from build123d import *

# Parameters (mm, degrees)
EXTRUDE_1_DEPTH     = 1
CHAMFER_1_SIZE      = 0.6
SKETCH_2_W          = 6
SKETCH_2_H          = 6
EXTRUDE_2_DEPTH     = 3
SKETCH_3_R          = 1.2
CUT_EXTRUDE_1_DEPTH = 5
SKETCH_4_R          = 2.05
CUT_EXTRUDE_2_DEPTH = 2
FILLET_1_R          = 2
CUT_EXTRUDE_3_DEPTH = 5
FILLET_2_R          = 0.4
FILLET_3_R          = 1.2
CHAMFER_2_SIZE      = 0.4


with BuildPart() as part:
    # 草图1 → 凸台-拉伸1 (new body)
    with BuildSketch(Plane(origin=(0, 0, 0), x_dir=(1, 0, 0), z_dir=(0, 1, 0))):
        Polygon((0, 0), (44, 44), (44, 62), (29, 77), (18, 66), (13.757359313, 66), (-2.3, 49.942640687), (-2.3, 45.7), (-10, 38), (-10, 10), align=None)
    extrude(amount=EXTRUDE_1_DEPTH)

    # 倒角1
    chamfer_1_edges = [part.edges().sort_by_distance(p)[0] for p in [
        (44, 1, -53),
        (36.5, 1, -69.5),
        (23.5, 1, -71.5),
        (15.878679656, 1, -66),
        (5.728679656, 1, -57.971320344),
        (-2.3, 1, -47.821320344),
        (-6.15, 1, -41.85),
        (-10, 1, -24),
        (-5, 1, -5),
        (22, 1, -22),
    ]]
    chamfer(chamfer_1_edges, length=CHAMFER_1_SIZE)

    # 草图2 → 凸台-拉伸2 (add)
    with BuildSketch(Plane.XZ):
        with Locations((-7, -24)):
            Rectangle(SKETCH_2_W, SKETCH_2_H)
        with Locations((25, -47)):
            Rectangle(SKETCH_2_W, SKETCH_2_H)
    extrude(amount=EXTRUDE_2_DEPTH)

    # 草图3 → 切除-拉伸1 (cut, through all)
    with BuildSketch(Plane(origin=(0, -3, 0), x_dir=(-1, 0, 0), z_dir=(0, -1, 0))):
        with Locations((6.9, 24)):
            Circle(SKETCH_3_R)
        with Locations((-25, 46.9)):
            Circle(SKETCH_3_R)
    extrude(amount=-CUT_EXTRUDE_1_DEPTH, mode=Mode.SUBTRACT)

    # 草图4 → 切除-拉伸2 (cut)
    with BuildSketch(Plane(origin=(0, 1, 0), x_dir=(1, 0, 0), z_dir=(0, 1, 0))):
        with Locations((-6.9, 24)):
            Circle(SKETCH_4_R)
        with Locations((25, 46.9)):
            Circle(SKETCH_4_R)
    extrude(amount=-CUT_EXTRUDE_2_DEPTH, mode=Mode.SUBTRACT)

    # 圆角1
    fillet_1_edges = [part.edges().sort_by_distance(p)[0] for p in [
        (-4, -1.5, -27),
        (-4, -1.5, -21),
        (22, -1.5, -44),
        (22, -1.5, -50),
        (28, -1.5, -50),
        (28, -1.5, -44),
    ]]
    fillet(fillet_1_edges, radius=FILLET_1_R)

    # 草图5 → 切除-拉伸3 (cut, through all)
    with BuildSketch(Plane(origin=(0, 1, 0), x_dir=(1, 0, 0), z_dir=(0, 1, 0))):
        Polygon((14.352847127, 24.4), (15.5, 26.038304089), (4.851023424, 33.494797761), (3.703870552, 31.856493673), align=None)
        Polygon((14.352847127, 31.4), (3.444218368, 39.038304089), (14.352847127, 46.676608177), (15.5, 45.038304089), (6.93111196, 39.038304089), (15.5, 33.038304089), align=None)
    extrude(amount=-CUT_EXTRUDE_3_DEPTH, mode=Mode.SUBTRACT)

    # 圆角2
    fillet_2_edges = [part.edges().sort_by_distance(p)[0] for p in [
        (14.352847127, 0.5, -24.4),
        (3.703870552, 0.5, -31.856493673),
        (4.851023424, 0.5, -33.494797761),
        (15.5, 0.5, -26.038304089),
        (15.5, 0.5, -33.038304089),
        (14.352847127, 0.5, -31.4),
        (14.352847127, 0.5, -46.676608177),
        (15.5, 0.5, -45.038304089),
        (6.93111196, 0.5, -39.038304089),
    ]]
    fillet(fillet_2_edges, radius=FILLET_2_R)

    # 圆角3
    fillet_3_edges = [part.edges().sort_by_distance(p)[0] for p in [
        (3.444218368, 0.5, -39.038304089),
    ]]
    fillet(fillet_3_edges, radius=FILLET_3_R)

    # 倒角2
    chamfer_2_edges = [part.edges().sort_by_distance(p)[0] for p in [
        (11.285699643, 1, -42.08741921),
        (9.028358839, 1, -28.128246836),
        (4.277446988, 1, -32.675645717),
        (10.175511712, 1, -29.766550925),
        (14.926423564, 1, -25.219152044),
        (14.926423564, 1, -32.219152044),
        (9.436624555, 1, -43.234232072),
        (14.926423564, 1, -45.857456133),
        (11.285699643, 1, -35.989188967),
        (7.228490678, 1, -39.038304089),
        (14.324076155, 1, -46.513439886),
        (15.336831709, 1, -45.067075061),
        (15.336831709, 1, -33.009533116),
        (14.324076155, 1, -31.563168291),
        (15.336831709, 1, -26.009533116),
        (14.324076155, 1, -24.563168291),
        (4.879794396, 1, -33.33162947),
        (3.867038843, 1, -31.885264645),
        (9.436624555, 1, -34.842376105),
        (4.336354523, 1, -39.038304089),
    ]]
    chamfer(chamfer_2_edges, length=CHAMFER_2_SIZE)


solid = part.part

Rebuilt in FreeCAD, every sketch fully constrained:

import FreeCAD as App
import Part
import Sketcher
Q = App.Units.Quantity


def edges_at(feature, points):
    """Names of the edges that pass closest to the given points."""
    edges = feature.Shape.Edges
    near = lambda p: min(range(len(edges)), key=lambda i: edges[i].distToShape(Part.Vertex(*p))[0])
    return sorted({f"Edge{near(p) + 1}" for p in points})

doc = App.newDocument("Part")
body = doc.addObject("PartDesign::Body", "Body")

sketch1 = body.newObject("Sketcher::SketchObject", "Sketch")
sketch1.AttachmentSupport = (doc.getObject("XZ_Plane"), [""])
sketch1.MapMode = "FlatFace"
sketch1.addGeometry([
    Part.LineSegment(App.Vector(0, 0, 0), App.Vector(44, -44, 0)),
    Part.LineSegment(App.Vector(44, -44, 0), App.Vector(44, -62, 0)),
    Part.LineSegment(App.Vector(44, -62, 0), App.Vector(29, -77, 0)),
    Part.LineSegment(App.Vector(29, -77, 0), App.Vector(18, -66, 0)),
    Part.LineSegment(App.Vector(18, -66, 0), App.Vector(13.8, -66, 0)),
    Part.LineSegment(App.Vector(13.8, -66, 0), App.Vector(-2.3, -49.9, 0)),
    Part.LineSegment(App.Vector(-2.3, -49.9, 0), App.Vector(-2.3, -45.7, 0)),
    Part.LineSegment(App.Vector(-2.3, -45.7, 0), App.Vector(-10, -38, 0)),
    Part.LineSegment(App.Vector(-10, -38, 0), App.Vector(-10, -10, 0)),
    Part.LineSegment(App.Vector(-10, -10, 0), App.Vector(0, 0, 0)),
], False)
sketch1.addConstraint([
    Sketcher.Constraint("Coincident", 0, 2, 1, 1),
    Sketcher.Constraint("Coincident", 1, 2, 2, 1),
    Sketcher.Constraint("Coincident", 2, 2, 3, 1),
    Sketcher.Constraint("Coincident", 3, 2, 4, 1),
    Sketcher.Constraint("Coincident", 4, 2, 5, 1),
    Sketcher.Constraint("Coincident", 5, 2, 6, 1),
    Sketcher.Constraint("Coincident", 6, 2, 7, 1),
    Sketcher.Constraint("Coincident", 7, 2, 8, 1),
    Sketcher.Constraint("Coincident", 8, 2, 9, 1),
    Sketcher.Constraint("Coincident", 9, 2, 0, 1),
    Sketcher.Constraint("Vertical", 1),
    Sketcher.Constraint("Horizontal", 4),
    Sketcher.Constraint("Vertical", 6),
    Sketcher.Constraint("Vertical", 8),
    Sketcher.Constraint("Coincident", 9, 2, -1, 1),
    Sketcher.Constraint("Perpendicular", 0, 2),
    Sketcher.Constraint("Perpendicular", 2, 3),
    Sketcher.Constraint("Parallel", 3, 5),
    Sketcher.Constraint("Parallel", 5, 7),
    Sketcher.Constraint("Perpendicular", 7, 9),
    Sketcher.Constraint("Equal", 4, 6),
    Sketcher.Constraint("DistanceY", 1, 2, 1, 1, 18.0),
    Sketcher.Constraint("DistanceY", 8, 1, 8, 2, 28.0),
    Sketcher.Constraint("Angle", 0, Q("-45 deg")),
    Sketcher.Constraint("DistanceX", -1, 1, 0, 2, 44.0),
    Sketcher.Constraint("DistanceX", -1, 1, 2, 2, 29.0),
    Sketcher.Constraint("DistanceX", -1, 1, 3, 2, 18.0),
    Sketcher.Constraint("DistanceX", 5, 2, -1, 1, 2.3),
    Sketcher.Constraint("DistanceX", 4, 2, 4, 1, 4.242641),
])
pad1 = body.newObject("PartDesign::Pad", "Pad")
pad1.Profile = sketch1
pad1.Length = 1
pad1.Reversed = True
doc.recompute()

chamfer = body.newObject("PartDesign::Chamfer", "Chamfer")
chamfer.Base = (pad1, edges_at(pad1, [
    (44, 1, -53),
    (36.5, 1, -69.5),
    (23.5, 1, -71.5),
    (15.879, 1, -66),
    (5.729, 1, -57.971),
    (-2.3, 1, -47.821),
    (-6.15, 1, -41.85),
    (-10, 1, -24),
    (-5, 1, -5),
    (22, 1, -22),
]))
chamfer.Size = 0.6

sketch2 = body.newObject("Sketcher::SketchObject", "Sketch001")
sketch2.AttachmentSupport = (doc.getObject("XZ_Plane"), [""])
sketch2.MapMode = "FlatFace"
sketch2.addGeometry([
    Part.LineSegment(App.Vector(-10, -21, 0), App.Vector(-10, -27, 0)),
    Part.LineSegment(App.Vector(-10, -27, 0), App.Vector(-4, -27, 0)),
    Part.LineSegment(App.Vector(-4, -27, 0), App.Vector(-4, -21, 0)),
    Part.LineSegment(App.Vector(-4, -21, 0), App.Vector(-10, -21, 0)),
    Part.LineSegment(App.Vector(22, -44, 0), App.Vector(22, -50, 0)),
    Part.LineSegment(App.Vector(22, -50, 0), App.Vector(28, -50, 0)),
    Part.LineSegment(App.Vector(28, -50, 0), App.Vector(28, -44, 0)),
    Part.LineSegment(App.Vector(28, -44, 0), App.Vector(22, -44, 0)),
], False)
sketch2.addConstraint([
    Sketcher.Constraint("Coincident", 0, 2, 1, 1),
    Sketcher.Constraint("Coincident", 1, 2, 2, 1),
    Sketcher.Constraint("Coincident", 2, 2, 3, 1),
    Sketcher.Constraint("Coincident", 3, 2, 0, 1),
    Sketcher.Constraint("Coincident", 4, 2, 5, 1),
    Sketcher.Constraint("Coincident", 5, 2, 6, 1),
    Sketcher.Constraint("Coincident", 6, 2, 7, 1),
    Sketcher.Constraint("Coincident", 7, 2, 4, 1),
    Sketcher.Constraint("Vertical", 0),
    Sketcher.Constraint("Horizontal", 1),
    Sketcher.Constraint("Vertical", 2),
    Sketcher.Constraint("Horizontal", 3),
    Sketcher.Constraint("Vertical", 4),
    Sketcher.Constraint("Horizontal", 5),
    Sketcher.Constraint("Vertical", 6),
    Sketcher.Constraint("Horizontal", 7),
    Sketcher.Constraint("Equal", 3, 5),
    Sketcher.Constraint("Equal", 7, 0),
    Sketcher.Constraint("Equal", 2, 4),
    Sketcher.Constraint("DistanceX", 1, 1, 1, 2, 6.0),
    Sketcher.Constraint("DistanceX", 0, 2, -1, 1, 10.0),
    Sketcher.Constraint("DistanceY", 0, 2, -1, 1, 27.0),
    Sketcher.Constraint("DistanceX", -1, 1, 4, 2, 22.0),
    Sketcher.Constraint("DistanceY", 4, 2, -1, 1, 50.0),
])
pad2 = body.newObject("PartDesign::Pad", "Pad001")
pad2.Profile = sketch2
pad2.Length = 3

sketch3 = body.newObject("Sketcher::SketchObject", "Sketch002")
sketch3.AttachmentSupport = (doc.getObject("XZ_Plane"), [""])
sketch3.MapMode = "FlatFace"
sketch3.AttachmentOffset = App.Placement(App.Vector(0, 0, 3), App.Rotation())
sketch3.addGeometry([
    Part.Circle(App.Vector(-6.9, -24, 0), App.Vector(0, 0, 1), 1.2),
    Part.Circle(App.Vector(25, -46.9, 0), App.Vector(0, 0, 1), 1.2),
], False)
sketch3.addConstraint([
    Sketcher.Constraint("Equal", 0, 1),
    Sketcher.Constraint("Diameter", 0, 2.4),
    Sketcher.Constraint("DistanceY", 0, 3, -1, 1, 24.0),
    Sketcher.Constraint("DistanceX", -1, 1, 1, 3, 25.0),
    Sketcher.Constraint("DistanceX", 0, 3, -1, 1, 6.9),
    Sketcher.Constraint("DistanceY", 1, 3, -1, 1, 46.9),
])
pocket1 = body.newObject("PartDesign::Pocket", "Pocket")
pocket1.Profile = sketch3
pocket1.Type = "ThroughAll"

sketch4 = body.newObject("Sketcher::SketchObject", "Sketch003")
sketch4.AttachmentSupport = (doc.getObject("XZ_Plane"), [""])
sketch4.MapMode = "FlatFace"
sketch4.AttachmentOffset = App.Placement(App.Vector(0, 0, -1), App.Rotation())
sketch4.addGeometry([
    Part.Circle(App.Vector(-6.9, -24, 0), App.Vector(0, 0, 1), 2),
    Part.Circle(App.Vector(25, -46.9, 0), App.Vector(0, 0, 1), 2),
], False)
sketch4.addConstraint([
    Sketcher.Constraint("Equal", 0, 1),
    Sketcher.Constraint("Diameter", 0, 4.1),
    Sketcher.Constraint("DistanceY", 0, 3, -1, 1, 24.0),
    Sketcher.Constraint("DistanceX", -1, 1, 1, 3, 25.0),
    Sketcher.Constraint("DistanceX", 0, 3, -1, 1, 6.9),
    Sketcher.Constraint("DistanceY", 1, 3, -1, 1, 46.9),
])
pocket2 = body.newObject("PartDesign::Pocket", "Pocket001")
pocket2.Profile = sketch4
pocket2.Length = 2
pocket2.Reversed = True
doc.recompute()

fillet = body.newObject("PartDesign::Fillet", "Fillet")
fillet.Base = (pocket2, edges_at(pocket2, [
    (-4, -1.5, -27),
    (-4, -1.5, -21),
    (22, -1.5, -44),
    (22, -1.5, -50),
    (28, -1.5, -50),
    (28, -1.5, -44),
]))
fillet.Radius = 2

sketch5 = body.newObject("Sketcher::SketchObject", "Sketch004")
sketch5.AttachmentSupport = (doc.getObject("XZ_Plane"), [""])
sketch5.MapMode = "FlatFace"
sketch5.AttachmentOffset = App.Placement(App.Vector(0, 0, -1), App.Rotation())
sketch5.addGeometry([
    Part.LineSegment(App.Vector(14.4, -24.4, 0), App.Vector(15.5, -26, 0)),
    Part.LineSegment(App.Vector(15.5, -26, 0), App.Vector(4.9, -33.5, 0)),
    Part.LineSegment(App.Vector(4.9, -33.5, 0), App.Vector(3.7, -31.9, 0)),
    Part.LineSegment(App.Vector(3.7, -31.9, 0), App.Vector(14.4, -24.4, 0)),
    Part.LineSegment(App.Vector(3.4, -39, 0), App.Vector(14.4, -31.4, 0)),
    Part.LineSegment(App.Vector(14.4, -31.4, 0), App.Vector(15.5, -33, 0)),
    Part.LineSegment(App.Vector(15.5, -33, 0), App.Vector(6.9, -39, 0)),
    Part.LineSegment(App.Vector(6.9, -39, 0), App.Vector(15.5, -45, 0)),
    Part.LineSegment(App.Vector(15.5, -45, 0), App.Vector(14.4, -46.7, 0)),
    Part.LineSegment(App.Vector(14.4, -46.7, 0), App.Vector(3.4, -39, 0)),
], False)
sketch5.addConstraint([
    Sketcher.Constraint("Coincident", 0, 2, 1, 1),
    Sketcher.Constraint("Coincident", 1, 2, 2, 1),
    Sketcher.Constraint("Coincident", 2, 2, 3, 1),
    Sketcher.Constraint("Coincident", 3, 2, 0, 1),
    Sketcher.Constraint("Coincident", 4, 2, 5, 1),
    Sketcher.Constraint("Coincident", 5, 2, 6, 1),
    Sketcher.Constraint("Coincident", 6, 2, 7, 1),
    Sketcher.Constraint("Coincident", 7, 2, 8, 1),
    Sketcher.Constraint("Coincident", 8, 2, 9, 1),
    Sketcher.Constraint("Coincident", 9, 2, 4, 1),
    Sketcher.Constraint("Perpendicular", 0, 1),
    Sketcher.Constraint("Perpendicular", 1, 2),
    Sketcher.Constraint("Perpendicular", 2, 3),
    Sketcher.Constraint("Parallel", 3, 4),
    Sketcher.Constraint("Perpendicular", 4, 5),
    Sketcher.Constraint("Perpendicular", 5, 6),
    Sketcher.Constraint("Perpendicular", 7, 8),
    Sketcher.Constraint("Perpendicular", 8, 9),
    Sketcher.Constraint("Horizontal", 6, 2, 9, 2),
    Sketcher.Constraint("Vertical", 3, 2, 4, 2),
    Sketcher.Constraint("Vertical", 0, 2, 5, 2),
    Sketcher.Constraint("Vertical", 5, 2, 7, 2),
    Sketcher.Constraint("Vertical", 4, 2, 8, 2),
    Sketcher.Constraint("Angle", 0, Q("-55 deg")),
    Sketcher.Constraint("Distance", 0, 2.0),
    Sketcher.Constraint("Distance", 1, 13.0),
    Sketcher.Constraint("DistanceY", 4, 2, 3, 2, 7.0),
    Sketcher.Constraint("DistanceY", 6, 2, 5, 2, 6.0),
    Sketcher.Constraint("DistanceX", -1, 1, 0, 2, 15.5),
    Sketcher.Constraint("DistanceY", 3, 2, -1, 1, 24.4),
])
pocket3 = body.newObject("PartDesign::Pocket", "Pocket002")
pocket3.Profile = sketch5
pocket3.Type = "ThroughAll"
pocket3.Reversed = True
doc.recompute()

fillet2 = body.newObject("PartDesign::Fillet", "Fillet001")
fillet2.Base = (pocket3, edges_at(pocket3, [
    (14.353, 0.5, -24.4),
    (3.704, 0.5, -31.856),
    (4.851, 0.5, -33.495),
    (15.5, 0.5, -26.038),
    (15.5, 0.5, -33.038),
    (14.353, 0.5, -31.4),
    (14.353, 0.5, -46.677),
    (15.5, 0.5, -45.038),
    (6.931, 0.5, -39.038),
]))
fillet2.Radius = 0.4
doc.recompute()

fillet3 = body.newObject("PartDesign::Fillet", "Fillet002")
fillet3.Base = (fillet2, edges_at(fillet2, [(3.444, 0.5, -39.038)]))
fillet3.Radius = 1.2
doc.recompute()

chamfer2 = body.newObject("PartDesign::Chamfer", "Chamfer001")
chamfer2.Base = (fillet3, edges_at(fillet3, [
    (11.286, 1, -42.087),
    (9.028, 1, -28.128),
    (4.277, 1, -32.676),
    (10.176, 1, -29.767),
    (14.926, 1, -25.219),
    (14.926, 1, -32.219),
    (9.437, 1, -43.234),
    (14.926, 1, -45.857),
    (11.286, 1, -35.989),
    (7.228, 1, -39.038),
    (14.324, 1, -46.513),
    (15.337, 1, -45.067),
    (15.337, 1, -33.01),
    (14.324, 1, -31.563),
    (15.337, 1, -26.01),
    (14.324, 1, -24.563),
    (4.88, 1, -33.332),
    (3.867, 1, -31.885),
    (9.437, 1, -34.842),
    (4.336, 1, -39.038),
]))
chamfer2.Size = 0.4

doc.recompute()
